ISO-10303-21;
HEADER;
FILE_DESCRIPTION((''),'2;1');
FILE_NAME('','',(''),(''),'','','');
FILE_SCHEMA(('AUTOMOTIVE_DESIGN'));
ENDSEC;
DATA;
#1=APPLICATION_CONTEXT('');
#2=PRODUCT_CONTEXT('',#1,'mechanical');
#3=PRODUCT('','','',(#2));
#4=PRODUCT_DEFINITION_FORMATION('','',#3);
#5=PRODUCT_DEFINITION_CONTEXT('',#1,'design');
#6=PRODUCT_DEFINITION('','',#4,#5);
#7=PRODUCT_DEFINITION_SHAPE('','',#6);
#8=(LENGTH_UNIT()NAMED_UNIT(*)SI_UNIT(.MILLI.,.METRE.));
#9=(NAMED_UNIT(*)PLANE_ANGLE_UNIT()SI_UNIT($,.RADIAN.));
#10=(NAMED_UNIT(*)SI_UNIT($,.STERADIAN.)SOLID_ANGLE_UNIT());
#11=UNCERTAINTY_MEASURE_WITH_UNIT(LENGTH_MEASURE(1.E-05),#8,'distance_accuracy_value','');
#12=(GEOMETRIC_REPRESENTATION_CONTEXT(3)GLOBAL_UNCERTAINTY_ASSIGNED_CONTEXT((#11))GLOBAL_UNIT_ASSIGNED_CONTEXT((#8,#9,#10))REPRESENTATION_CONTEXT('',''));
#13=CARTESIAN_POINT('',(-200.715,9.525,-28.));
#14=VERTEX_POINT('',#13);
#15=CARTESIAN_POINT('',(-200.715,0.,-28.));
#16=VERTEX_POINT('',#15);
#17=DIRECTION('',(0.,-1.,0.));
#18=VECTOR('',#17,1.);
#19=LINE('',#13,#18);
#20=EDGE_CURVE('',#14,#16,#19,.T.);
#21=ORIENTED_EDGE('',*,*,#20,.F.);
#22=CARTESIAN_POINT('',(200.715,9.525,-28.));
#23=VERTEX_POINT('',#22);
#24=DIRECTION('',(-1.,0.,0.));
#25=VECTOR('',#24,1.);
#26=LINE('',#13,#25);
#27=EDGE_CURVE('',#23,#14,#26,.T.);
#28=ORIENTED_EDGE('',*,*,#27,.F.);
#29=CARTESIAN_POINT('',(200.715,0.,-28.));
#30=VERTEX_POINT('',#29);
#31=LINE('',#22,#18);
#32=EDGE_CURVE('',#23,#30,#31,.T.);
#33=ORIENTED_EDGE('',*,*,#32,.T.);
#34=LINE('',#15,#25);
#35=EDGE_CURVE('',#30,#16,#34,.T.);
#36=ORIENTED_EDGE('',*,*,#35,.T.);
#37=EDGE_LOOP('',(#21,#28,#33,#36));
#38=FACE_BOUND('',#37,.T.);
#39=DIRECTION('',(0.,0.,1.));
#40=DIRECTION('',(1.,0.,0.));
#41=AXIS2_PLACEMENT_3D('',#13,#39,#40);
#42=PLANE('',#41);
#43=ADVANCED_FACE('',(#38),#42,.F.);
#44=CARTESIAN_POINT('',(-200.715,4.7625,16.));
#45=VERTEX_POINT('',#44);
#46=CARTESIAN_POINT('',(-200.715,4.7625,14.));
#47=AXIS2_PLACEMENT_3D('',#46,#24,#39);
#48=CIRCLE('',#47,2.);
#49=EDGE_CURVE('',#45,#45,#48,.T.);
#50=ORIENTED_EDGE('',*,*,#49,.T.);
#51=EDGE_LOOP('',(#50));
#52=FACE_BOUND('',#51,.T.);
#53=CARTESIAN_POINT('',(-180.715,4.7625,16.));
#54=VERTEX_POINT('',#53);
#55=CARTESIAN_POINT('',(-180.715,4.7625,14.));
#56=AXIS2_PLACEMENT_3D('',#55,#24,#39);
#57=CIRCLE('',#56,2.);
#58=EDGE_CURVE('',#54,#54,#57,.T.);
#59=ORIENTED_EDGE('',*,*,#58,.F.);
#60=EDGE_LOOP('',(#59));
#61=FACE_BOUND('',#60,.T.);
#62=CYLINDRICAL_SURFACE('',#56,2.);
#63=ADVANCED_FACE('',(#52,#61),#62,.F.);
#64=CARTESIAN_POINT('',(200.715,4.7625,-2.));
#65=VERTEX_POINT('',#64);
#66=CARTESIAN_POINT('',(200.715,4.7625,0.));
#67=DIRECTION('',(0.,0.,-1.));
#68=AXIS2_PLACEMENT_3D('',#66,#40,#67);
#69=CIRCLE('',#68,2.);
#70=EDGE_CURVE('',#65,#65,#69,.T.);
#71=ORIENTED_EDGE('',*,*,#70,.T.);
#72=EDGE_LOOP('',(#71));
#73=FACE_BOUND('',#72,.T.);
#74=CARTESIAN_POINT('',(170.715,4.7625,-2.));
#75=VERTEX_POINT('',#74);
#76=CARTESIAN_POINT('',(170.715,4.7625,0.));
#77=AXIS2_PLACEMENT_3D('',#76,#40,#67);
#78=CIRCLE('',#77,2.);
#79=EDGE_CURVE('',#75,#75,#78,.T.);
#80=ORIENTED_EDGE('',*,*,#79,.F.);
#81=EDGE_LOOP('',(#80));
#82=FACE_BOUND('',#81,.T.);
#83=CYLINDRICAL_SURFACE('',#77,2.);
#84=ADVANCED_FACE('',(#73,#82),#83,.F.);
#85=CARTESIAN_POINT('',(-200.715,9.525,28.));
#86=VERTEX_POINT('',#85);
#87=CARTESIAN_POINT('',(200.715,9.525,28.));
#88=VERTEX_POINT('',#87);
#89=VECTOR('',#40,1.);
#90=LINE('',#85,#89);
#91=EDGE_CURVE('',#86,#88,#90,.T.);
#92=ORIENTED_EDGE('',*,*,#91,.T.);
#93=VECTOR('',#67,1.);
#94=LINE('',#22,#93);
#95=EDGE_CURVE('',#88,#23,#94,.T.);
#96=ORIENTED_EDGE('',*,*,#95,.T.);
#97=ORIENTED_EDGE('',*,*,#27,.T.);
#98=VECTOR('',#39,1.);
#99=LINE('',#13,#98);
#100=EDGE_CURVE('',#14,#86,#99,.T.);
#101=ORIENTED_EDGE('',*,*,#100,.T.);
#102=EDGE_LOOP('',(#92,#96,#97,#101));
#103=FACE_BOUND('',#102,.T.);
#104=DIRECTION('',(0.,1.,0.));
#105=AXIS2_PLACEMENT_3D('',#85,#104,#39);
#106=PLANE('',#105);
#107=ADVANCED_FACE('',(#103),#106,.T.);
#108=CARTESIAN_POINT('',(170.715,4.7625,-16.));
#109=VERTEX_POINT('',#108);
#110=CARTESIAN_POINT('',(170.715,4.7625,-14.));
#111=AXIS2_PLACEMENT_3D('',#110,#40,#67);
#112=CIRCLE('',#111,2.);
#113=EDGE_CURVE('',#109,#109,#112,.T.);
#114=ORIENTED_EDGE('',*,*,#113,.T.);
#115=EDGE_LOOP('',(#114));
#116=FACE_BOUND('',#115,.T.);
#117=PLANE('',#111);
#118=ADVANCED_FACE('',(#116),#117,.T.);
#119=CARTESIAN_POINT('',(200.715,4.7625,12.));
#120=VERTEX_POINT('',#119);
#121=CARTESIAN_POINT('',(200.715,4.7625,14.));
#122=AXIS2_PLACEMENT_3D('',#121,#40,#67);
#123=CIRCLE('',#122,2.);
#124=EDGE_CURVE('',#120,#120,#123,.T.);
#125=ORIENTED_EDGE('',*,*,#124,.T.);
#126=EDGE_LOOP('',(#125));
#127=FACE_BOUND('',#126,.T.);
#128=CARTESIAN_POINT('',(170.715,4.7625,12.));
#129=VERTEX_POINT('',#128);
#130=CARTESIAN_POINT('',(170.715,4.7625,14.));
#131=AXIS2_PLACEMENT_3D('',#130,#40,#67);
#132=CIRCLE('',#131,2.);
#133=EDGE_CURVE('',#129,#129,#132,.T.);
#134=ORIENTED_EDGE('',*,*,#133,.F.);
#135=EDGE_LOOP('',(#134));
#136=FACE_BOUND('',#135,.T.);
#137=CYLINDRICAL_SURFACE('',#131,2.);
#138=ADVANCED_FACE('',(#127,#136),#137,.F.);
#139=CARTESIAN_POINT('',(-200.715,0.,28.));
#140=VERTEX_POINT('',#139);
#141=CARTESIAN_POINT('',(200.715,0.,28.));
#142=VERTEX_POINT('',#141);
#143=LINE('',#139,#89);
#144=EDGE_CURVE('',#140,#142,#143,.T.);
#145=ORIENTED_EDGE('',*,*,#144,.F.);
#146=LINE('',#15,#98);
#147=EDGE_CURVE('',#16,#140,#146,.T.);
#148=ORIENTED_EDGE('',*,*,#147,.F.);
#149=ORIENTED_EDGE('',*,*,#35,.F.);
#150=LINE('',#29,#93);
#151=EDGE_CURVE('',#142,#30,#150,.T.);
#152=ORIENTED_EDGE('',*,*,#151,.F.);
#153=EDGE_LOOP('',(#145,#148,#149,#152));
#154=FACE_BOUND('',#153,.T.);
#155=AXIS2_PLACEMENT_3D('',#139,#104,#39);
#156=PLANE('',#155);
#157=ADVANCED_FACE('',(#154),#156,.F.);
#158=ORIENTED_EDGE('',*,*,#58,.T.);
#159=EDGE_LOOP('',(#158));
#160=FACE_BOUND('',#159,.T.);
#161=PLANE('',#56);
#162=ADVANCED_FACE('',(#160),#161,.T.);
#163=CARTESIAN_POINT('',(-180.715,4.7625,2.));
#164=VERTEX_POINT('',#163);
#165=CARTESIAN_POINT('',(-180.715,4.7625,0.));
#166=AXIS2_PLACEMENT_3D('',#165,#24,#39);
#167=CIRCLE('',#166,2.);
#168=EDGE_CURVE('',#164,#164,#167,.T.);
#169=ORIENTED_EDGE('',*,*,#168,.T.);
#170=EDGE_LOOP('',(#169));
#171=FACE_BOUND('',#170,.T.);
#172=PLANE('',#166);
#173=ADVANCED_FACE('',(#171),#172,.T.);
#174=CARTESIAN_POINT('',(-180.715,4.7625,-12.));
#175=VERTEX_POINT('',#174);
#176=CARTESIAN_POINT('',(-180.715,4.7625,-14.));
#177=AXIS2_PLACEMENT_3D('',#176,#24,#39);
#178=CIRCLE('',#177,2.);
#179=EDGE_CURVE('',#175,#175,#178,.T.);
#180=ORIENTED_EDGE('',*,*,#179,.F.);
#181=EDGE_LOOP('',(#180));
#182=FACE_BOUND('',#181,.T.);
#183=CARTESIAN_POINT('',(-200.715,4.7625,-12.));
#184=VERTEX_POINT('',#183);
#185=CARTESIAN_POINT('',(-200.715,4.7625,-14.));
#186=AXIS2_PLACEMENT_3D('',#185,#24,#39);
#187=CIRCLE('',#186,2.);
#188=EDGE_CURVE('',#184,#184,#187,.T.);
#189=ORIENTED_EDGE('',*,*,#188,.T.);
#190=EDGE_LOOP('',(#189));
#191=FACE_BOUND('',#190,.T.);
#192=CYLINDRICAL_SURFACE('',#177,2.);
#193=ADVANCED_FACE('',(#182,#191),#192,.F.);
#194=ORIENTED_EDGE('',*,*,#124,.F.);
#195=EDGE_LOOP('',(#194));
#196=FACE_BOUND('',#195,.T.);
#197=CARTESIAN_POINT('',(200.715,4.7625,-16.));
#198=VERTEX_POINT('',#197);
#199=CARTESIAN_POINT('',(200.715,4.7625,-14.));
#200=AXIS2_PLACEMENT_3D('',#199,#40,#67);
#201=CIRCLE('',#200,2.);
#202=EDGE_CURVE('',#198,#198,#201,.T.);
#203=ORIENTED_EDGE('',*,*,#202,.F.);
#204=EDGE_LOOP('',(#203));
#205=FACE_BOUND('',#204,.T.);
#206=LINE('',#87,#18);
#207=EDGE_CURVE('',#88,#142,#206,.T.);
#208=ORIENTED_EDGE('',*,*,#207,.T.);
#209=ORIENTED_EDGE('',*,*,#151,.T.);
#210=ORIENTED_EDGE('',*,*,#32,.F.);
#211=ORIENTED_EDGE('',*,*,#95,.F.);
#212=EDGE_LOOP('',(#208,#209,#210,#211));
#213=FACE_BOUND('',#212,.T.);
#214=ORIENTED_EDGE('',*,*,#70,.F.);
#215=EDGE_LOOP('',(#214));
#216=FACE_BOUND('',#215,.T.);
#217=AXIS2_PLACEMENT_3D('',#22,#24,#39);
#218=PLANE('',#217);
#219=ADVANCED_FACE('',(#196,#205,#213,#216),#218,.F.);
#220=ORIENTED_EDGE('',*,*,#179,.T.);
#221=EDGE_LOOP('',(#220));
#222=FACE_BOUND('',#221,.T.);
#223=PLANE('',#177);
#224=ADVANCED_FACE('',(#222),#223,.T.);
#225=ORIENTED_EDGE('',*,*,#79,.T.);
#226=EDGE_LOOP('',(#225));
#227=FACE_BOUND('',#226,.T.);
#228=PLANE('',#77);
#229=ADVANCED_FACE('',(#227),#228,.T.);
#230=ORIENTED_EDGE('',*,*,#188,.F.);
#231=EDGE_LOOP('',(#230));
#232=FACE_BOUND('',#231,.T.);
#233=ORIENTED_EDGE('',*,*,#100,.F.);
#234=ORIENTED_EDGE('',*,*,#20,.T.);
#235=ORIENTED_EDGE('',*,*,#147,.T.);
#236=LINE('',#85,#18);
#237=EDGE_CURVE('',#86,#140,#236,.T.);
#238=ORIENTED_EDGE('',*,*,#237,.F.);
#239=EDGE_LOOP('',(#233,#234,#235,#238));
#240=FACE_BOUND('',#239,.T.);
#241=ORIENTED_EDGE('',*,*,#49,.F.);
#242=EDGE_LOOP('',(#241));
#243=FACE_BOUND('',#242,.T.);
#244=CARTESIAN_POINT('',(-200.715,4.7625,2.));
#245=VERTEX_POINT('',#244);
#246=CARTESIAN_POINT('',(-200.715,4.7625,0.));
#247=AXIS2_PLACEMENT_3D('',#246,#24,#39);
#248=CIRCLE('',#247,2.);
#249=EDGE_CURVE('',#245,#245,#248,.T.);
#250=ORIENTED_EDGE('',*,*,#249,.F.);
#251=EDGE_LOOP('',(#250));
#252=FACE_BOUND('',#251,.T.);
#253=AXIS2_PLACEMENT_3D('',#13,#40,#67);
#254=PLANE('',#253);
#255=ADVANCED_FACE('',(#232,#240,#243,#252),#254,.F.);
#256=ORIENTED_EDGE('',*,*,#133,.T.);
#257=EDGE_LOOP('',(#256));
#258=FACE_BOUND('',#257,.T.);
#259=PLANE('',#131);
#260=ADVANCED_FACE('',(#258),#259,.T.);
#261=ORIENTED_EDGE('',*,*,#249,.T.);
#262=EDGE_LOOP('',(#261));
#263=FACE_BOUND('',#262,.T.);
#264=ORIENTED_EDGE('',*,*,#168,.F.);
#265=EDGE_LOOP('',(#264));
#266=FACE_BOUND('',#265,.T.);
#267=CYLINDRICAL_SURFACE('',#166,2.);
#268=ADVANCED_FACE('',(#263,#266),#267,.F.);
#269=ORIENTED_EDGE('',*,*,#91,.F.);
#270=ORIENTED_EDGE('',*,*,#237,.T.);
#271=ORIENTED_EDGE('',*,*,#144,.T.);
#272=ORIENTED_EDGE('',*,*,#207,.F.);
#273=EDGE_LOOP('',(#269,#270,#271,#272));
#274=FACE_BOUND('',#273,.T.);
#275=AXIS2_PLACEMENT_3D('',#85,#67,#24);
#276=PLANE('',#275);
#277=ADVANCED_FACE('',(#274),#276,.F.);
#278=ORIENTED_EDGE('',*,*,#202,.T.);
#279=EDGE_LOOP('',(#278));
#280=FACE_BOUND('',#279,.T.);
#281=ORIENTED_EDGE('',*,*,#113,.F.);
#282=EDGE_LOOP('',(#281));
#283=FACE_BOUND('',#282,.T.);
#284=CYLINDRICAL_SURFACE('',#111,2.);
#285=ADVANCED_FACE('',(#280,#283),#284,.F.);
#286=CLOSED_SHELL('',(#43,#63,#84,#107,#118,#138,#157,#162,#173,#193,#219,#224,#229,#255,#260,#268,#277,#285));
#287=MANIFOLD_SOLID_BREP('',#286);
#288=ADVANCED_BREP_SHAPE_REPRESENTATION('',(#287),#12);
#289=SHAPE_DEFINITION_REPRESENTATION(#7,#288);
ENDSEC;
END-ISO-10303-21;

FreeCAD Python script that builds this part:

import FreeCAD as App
import Part
import Sketcher
Q = App.Units.Quantity


def add_polygon(sketch, points):
    """Adds a closed chain of lines whose ends are joined by coincident constraints."""
    first, n = sketch.GeometryCount, len(points)
    for a, b in zip(points, points[1:] + points[:1]):
        sketch.addGeometry(Part.LineSegment(App.Vector(*a, 0), App.Vector(*b, 0)), False)
    for i in range(n):
        sketch.addConstraint(Sketcher.Constraint("Coincident", first + i, 2, first + (i + 1) % n, 1))

doc = App.newDocument("Part")
body = doc.addObject("PartDesign::Body", "Body")

# Sketch on XZ plane
sketch1 = body.newObject("Sketcher::SketchObject", "Sketch")
sketch1.AttachmentSupport = (doc.getObject("XZ_Plane"), [""])
sketch1.MapMode = "FlatFace"
add_polygon(sketch1, [(-201, -28), (-201, 28), (201, 28), (201, -28)])  # lines 0-3
sketch1.addConstraint([
    Sketcher.Constraint("Vertical", 0),
    Sketcher.Constraint("Horizontal", 1),
    Sketcher.Constraint("Vertical", 2),
    Sketcher.Constraint("Horizontal", 3),
    Sketcher.Constraint("Symmetric", 0, 2, 2, 2, -1, 1),
    Sketcher.Constraint("DistanceY", 0, 1, 0, 2, Q("56 mm")),
    Sketcher.Constraint("DistanceX", 1, 1, 1, 2, Q("401.43 mm")),
])
pad1 = body.newObject("PartDesign::Pad", "Pad")
pad1.Profile = sketch1
pad1.Length = 9.525
pad1.Reversed = True

# Sketch on YZ plane
sketch2 = body.newObject("Sketcher::SketchObject", "Sketch001")
sketch2.AttachmentSupport = (doc.getObject("YZ_Plane"), [""])
sketch2.MapMode = "FlatFace"
sketch2.AttachmentOffset = App.Placement(App.Vector(0, 0, 200.715), App.Rotation())
sketch2.addGeometry([
    Part.Circle(App.Vector(4.8, 14, 0), App.Vector(0, 0, 1), 2),
    Part.Circle(App.Vector(4.8, 0, 0), App.Vector(0, 0, 1), 2),
    Part.Circle(App.Vector(4.8, -14, 0), App.Vector(0, 0, 1), 2),
], False)
sketch2.addConstraint([
    Sketcher.Constraint("Equal", 0, 1),
    Sketcher.Constraint("Equal", 1, 2),
    Sketcher.Constraint("Symmetric", 0, 3, 2, 3, -1),
    Sketcher.Constraint("PointOnObject", 1, 3, -1),
    Sketcher.Constraint("Vertical", 0, 3, 1, 3),
    Sketcher.Constraint("Diameter", 0, Q("4 mm")),
    Sketcher.Constraint("DistanceY", -1, 1, 0, 3, Q("14 mm")),
    Sketcher.Constraint("DistanceX", -1, 1, 0, 3, Q("4.7625 mm")),
])
pocket1 = body.newObject("PartDesign::Pocket", "Pocket")
pocket1.Profile = sketch2
pocket1.Length = 30

# Sketch on YZ plane
sketch3 = body.newObject("Sketcher::SketchObject", "Sketch002")
sketch3.AttachmentSupport = (doc.getObject("YZ_Plane"), [""])
sketch3.MapMode = "FlatFace"
sketch3.AttachmentOffset = App.Placement(App.Vector(0, 0, -180.715), App.Rotation())
sketch3.addGeometry([
    Part.Circle(App.Vector(4.8, -14, 0), App.Vector(0, 0, 1), 2),
    Part.Circle(App.Vector(4.8, 0, 0), App.Vector(0, 0, 1), 2),
    Part.Circle(App.Vector(4.8, 14, 0), App.Vector(0, 0, 1), 2),
], False)
sketch3.addConstraint([
    Sketcher.Constraint("Equal", 0, 1),
    Sketcher.Constraint("Equal", 1, 2),
    Sketcher.Constraint("Symmetric", 0, 3, 2, 3, -1),
    Sketcher.Constraint("PointOnObject", 1, 3, -1),
    Sketcher.Constraint("Vertical", 0, 3, 1, 3),
    Sketcher.Constraint("Diameter", 0, Q("4 mm")),
    Sketcher.Constraint("DistanceY", 0, 3, -1, 1, Q("14 mm")),
    Sketcher.Constraint("DistanceX", -1, 1, 0, 3, Q("4.7625 mm")),
])
pocket2 = body.newObject("PartDesign::Pocket", "Pocket001")
pocket2.Profile = sketch3
pocket2.Length = 20

doc.recompute()
